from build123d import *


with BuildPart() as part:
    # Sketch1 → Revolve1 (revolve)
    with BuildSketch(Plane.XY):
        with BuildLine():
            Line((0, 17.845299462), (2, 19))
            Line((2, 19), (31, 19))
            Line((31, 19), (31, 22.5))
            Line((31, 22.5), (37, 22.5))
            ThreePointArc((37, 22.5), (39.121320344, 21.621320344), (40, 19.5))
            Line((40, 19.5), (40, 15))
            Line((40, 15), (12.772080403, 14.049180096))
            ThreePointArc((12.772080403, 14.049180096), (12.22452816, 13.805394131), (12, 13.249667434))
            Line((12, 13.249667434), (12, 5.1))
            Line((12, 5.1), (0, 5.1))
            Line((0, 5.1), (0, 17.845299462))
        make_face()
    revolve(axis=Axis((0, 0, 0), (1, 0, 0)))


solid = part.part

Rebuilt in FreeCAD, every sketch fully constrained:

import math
import FreeCAD as App
import Part
import Sketcher

V = App.Vector
Q = App.Units.Quantity

doc = App.newDocument("Part")
body = doc.addObject("PartDesign::Body", "Body")

sketch1 = doc.addObject("Sketcher::SketchObject", "Sketch")
body.addObject(sketch1)
sketch1.AttachmentSupport = (doc.XY_Plane, [""])
sketch1.MapMode = "FlatFace"
sketch1.addGeometry(Part.LineSegment(V(2, 19, 0), V(0, 17.8, 0)), False)
sketch1.addGeometry(Part.LineSegment(V(0, 17.8, 0), V(0, 5.1, 0)), False)
sketch1.addGeometry(Part.LineSegment(V(0, 5.1, 0), V(12, 5.1, 0)), False)
sketch1.addGeometry(Part.LineSegment(V(12, 5.1, 0), V(12, 13.2, 0)), False)
sketch1.addGeometry(Part.ArcOfCircle(Part.Circle(V(12.8, 13.2, 0), V(0, 0, 1), 0.8), math.radians(92), math.radians(180)), False)
sketch1.addGeometry(Part.LineSegment(V(12.8, 14, 0), V(40, 15, 0)), False)
sketch1.addGeometry(Part.LineSegment(V(40, 15, 0), V(40, 19.5, 0)), False)
sketch1.addGeometry(Part.ArcOfCircle(Part.Circle(V(37, 19.5, 0), V(0, 0, 1), 3), math.radians(0), math.radians(90)), False)
sketch1.addGeometry(Part.LineSegment(V(37, 22.5, 0), V(31, 22.5, 0)), False)
sketch1.addGeometry(Part.LineSegment(V(31, 22.5, 0), V(31, 19, 0)), False)
sketch1.addGeometry(Part.LineSegment(V(31, 19, 0), V(2, 19, 0)), False)
sketch1.addConstraint(Sketcher.Constraint("Coincident", 0, 2, 1, 1))
sketch1.addConstraint(Sketcher.Constraint("Coincident", 1, 2, 2, 1))
sketch1.addConstraint(Sketcher.Constraint("Coincident", 2, 2, 3, 1))
sketch1.addConstraint(Sketcher.Constraint("Tangent", 3, 2, 4, 2))
sketch1.addConstraint(Sketcher.Constraint("Tangent", 4, 1, 5, 1))
sketch1.addConstraint(Sketcher.Constraint("Coincident", 5, 2, 6, 1))
sketch1.addConstraint(Sketcher.Constraint("Tangent", 6, 2, 7, 1))
sketch1.addConstraint(Sketcher.Constraint("Tangent", 7, 2, 8, 1))
sketch1.addConstraint(Sketcher.Constraint("Coincident", 8, 2, 9, 1))
sketch1.addConstraint(Sketcher.Constraint("Coincident", 9, 2, 10, 1))
sketch1.addConstraint(Sketcher.Constraint("Coincident", 10, 2, 0, 1))
sketch1.addConstraint(Sketcher.Constraint("Vertical", 1))
sketch1.addConstraint(Sketcher.Constraint("Horizontal", 2))
sketch1.addConstraint(Sketcher.Constraint("Vertical", 3))
sketch1.addConstraint(Sketcher.Constraint("Vertical", 6))
sketch1.addConstraint(Sketcher.Constraint("Horizontal", 8))
sketch1.addConstraint(Sketcher.Constraint("Vertical", 9))
sketch1.addConstraint(Sketcher.Constraint("Horizontal", 10))
sketch1.addConstraint(Sketcher.Constraint("PointOnObject", 0, 2, -2))
sketch1.addConstraint(Sketcher.Constraint("Radius", 7, 3.0))
sketch1.addConstraint(Sketcher.Constraint("Radius", 4, 0.8))
sketch1.addConstraint(Sketcher.Constraint("DistanceX", 2, 1, 2, 2, 12.0))
sketch1.addConstraint(Sketcher.Constraint("DistanceX", 8, 2, 8, 1, 6.0))
sketch1.addConstraint(Sketcher.Constraint("DistanceX", 10, 2, 10, 1, 29.0))
sketch1.addConstraint(Sketcher.Constraint("Angle", 0, Q("-150 deg")))
sketch1.addConstraint(Sketcher.Constraint("Angle", 5, Q("2 deg")))
sketch1.addConstraint(Sketcher.Constraint("DistanceY", 6, 1, 6, 2, 4.5))
sketch1.addConstraint(Sketcher.Constraint("DistanceY", 9, 2, 9, 1, 3.5))
sketch1.addConstraint(Sketcher.Constraint("DistanceX", -1, 1, 7, 3, 37.0))
sketch1.addConstraint(Sketcher.Constraint("DistanceY", -1, 1, 5, 2, 15.0))
sketch1.addConstraint(Sketcher.Constraint("DistanceY", -1, 1, 1, 2, 5.1))
revolution = doc.addObject("PartDesign::Revolution", "Revolution")
body.addObject(revolution)
revolution.Profile = sketch1
revolution.ReferenceAxis = (sketch1, ["H_Axis"])
revolution.Angle = 360

doc.recompute()
